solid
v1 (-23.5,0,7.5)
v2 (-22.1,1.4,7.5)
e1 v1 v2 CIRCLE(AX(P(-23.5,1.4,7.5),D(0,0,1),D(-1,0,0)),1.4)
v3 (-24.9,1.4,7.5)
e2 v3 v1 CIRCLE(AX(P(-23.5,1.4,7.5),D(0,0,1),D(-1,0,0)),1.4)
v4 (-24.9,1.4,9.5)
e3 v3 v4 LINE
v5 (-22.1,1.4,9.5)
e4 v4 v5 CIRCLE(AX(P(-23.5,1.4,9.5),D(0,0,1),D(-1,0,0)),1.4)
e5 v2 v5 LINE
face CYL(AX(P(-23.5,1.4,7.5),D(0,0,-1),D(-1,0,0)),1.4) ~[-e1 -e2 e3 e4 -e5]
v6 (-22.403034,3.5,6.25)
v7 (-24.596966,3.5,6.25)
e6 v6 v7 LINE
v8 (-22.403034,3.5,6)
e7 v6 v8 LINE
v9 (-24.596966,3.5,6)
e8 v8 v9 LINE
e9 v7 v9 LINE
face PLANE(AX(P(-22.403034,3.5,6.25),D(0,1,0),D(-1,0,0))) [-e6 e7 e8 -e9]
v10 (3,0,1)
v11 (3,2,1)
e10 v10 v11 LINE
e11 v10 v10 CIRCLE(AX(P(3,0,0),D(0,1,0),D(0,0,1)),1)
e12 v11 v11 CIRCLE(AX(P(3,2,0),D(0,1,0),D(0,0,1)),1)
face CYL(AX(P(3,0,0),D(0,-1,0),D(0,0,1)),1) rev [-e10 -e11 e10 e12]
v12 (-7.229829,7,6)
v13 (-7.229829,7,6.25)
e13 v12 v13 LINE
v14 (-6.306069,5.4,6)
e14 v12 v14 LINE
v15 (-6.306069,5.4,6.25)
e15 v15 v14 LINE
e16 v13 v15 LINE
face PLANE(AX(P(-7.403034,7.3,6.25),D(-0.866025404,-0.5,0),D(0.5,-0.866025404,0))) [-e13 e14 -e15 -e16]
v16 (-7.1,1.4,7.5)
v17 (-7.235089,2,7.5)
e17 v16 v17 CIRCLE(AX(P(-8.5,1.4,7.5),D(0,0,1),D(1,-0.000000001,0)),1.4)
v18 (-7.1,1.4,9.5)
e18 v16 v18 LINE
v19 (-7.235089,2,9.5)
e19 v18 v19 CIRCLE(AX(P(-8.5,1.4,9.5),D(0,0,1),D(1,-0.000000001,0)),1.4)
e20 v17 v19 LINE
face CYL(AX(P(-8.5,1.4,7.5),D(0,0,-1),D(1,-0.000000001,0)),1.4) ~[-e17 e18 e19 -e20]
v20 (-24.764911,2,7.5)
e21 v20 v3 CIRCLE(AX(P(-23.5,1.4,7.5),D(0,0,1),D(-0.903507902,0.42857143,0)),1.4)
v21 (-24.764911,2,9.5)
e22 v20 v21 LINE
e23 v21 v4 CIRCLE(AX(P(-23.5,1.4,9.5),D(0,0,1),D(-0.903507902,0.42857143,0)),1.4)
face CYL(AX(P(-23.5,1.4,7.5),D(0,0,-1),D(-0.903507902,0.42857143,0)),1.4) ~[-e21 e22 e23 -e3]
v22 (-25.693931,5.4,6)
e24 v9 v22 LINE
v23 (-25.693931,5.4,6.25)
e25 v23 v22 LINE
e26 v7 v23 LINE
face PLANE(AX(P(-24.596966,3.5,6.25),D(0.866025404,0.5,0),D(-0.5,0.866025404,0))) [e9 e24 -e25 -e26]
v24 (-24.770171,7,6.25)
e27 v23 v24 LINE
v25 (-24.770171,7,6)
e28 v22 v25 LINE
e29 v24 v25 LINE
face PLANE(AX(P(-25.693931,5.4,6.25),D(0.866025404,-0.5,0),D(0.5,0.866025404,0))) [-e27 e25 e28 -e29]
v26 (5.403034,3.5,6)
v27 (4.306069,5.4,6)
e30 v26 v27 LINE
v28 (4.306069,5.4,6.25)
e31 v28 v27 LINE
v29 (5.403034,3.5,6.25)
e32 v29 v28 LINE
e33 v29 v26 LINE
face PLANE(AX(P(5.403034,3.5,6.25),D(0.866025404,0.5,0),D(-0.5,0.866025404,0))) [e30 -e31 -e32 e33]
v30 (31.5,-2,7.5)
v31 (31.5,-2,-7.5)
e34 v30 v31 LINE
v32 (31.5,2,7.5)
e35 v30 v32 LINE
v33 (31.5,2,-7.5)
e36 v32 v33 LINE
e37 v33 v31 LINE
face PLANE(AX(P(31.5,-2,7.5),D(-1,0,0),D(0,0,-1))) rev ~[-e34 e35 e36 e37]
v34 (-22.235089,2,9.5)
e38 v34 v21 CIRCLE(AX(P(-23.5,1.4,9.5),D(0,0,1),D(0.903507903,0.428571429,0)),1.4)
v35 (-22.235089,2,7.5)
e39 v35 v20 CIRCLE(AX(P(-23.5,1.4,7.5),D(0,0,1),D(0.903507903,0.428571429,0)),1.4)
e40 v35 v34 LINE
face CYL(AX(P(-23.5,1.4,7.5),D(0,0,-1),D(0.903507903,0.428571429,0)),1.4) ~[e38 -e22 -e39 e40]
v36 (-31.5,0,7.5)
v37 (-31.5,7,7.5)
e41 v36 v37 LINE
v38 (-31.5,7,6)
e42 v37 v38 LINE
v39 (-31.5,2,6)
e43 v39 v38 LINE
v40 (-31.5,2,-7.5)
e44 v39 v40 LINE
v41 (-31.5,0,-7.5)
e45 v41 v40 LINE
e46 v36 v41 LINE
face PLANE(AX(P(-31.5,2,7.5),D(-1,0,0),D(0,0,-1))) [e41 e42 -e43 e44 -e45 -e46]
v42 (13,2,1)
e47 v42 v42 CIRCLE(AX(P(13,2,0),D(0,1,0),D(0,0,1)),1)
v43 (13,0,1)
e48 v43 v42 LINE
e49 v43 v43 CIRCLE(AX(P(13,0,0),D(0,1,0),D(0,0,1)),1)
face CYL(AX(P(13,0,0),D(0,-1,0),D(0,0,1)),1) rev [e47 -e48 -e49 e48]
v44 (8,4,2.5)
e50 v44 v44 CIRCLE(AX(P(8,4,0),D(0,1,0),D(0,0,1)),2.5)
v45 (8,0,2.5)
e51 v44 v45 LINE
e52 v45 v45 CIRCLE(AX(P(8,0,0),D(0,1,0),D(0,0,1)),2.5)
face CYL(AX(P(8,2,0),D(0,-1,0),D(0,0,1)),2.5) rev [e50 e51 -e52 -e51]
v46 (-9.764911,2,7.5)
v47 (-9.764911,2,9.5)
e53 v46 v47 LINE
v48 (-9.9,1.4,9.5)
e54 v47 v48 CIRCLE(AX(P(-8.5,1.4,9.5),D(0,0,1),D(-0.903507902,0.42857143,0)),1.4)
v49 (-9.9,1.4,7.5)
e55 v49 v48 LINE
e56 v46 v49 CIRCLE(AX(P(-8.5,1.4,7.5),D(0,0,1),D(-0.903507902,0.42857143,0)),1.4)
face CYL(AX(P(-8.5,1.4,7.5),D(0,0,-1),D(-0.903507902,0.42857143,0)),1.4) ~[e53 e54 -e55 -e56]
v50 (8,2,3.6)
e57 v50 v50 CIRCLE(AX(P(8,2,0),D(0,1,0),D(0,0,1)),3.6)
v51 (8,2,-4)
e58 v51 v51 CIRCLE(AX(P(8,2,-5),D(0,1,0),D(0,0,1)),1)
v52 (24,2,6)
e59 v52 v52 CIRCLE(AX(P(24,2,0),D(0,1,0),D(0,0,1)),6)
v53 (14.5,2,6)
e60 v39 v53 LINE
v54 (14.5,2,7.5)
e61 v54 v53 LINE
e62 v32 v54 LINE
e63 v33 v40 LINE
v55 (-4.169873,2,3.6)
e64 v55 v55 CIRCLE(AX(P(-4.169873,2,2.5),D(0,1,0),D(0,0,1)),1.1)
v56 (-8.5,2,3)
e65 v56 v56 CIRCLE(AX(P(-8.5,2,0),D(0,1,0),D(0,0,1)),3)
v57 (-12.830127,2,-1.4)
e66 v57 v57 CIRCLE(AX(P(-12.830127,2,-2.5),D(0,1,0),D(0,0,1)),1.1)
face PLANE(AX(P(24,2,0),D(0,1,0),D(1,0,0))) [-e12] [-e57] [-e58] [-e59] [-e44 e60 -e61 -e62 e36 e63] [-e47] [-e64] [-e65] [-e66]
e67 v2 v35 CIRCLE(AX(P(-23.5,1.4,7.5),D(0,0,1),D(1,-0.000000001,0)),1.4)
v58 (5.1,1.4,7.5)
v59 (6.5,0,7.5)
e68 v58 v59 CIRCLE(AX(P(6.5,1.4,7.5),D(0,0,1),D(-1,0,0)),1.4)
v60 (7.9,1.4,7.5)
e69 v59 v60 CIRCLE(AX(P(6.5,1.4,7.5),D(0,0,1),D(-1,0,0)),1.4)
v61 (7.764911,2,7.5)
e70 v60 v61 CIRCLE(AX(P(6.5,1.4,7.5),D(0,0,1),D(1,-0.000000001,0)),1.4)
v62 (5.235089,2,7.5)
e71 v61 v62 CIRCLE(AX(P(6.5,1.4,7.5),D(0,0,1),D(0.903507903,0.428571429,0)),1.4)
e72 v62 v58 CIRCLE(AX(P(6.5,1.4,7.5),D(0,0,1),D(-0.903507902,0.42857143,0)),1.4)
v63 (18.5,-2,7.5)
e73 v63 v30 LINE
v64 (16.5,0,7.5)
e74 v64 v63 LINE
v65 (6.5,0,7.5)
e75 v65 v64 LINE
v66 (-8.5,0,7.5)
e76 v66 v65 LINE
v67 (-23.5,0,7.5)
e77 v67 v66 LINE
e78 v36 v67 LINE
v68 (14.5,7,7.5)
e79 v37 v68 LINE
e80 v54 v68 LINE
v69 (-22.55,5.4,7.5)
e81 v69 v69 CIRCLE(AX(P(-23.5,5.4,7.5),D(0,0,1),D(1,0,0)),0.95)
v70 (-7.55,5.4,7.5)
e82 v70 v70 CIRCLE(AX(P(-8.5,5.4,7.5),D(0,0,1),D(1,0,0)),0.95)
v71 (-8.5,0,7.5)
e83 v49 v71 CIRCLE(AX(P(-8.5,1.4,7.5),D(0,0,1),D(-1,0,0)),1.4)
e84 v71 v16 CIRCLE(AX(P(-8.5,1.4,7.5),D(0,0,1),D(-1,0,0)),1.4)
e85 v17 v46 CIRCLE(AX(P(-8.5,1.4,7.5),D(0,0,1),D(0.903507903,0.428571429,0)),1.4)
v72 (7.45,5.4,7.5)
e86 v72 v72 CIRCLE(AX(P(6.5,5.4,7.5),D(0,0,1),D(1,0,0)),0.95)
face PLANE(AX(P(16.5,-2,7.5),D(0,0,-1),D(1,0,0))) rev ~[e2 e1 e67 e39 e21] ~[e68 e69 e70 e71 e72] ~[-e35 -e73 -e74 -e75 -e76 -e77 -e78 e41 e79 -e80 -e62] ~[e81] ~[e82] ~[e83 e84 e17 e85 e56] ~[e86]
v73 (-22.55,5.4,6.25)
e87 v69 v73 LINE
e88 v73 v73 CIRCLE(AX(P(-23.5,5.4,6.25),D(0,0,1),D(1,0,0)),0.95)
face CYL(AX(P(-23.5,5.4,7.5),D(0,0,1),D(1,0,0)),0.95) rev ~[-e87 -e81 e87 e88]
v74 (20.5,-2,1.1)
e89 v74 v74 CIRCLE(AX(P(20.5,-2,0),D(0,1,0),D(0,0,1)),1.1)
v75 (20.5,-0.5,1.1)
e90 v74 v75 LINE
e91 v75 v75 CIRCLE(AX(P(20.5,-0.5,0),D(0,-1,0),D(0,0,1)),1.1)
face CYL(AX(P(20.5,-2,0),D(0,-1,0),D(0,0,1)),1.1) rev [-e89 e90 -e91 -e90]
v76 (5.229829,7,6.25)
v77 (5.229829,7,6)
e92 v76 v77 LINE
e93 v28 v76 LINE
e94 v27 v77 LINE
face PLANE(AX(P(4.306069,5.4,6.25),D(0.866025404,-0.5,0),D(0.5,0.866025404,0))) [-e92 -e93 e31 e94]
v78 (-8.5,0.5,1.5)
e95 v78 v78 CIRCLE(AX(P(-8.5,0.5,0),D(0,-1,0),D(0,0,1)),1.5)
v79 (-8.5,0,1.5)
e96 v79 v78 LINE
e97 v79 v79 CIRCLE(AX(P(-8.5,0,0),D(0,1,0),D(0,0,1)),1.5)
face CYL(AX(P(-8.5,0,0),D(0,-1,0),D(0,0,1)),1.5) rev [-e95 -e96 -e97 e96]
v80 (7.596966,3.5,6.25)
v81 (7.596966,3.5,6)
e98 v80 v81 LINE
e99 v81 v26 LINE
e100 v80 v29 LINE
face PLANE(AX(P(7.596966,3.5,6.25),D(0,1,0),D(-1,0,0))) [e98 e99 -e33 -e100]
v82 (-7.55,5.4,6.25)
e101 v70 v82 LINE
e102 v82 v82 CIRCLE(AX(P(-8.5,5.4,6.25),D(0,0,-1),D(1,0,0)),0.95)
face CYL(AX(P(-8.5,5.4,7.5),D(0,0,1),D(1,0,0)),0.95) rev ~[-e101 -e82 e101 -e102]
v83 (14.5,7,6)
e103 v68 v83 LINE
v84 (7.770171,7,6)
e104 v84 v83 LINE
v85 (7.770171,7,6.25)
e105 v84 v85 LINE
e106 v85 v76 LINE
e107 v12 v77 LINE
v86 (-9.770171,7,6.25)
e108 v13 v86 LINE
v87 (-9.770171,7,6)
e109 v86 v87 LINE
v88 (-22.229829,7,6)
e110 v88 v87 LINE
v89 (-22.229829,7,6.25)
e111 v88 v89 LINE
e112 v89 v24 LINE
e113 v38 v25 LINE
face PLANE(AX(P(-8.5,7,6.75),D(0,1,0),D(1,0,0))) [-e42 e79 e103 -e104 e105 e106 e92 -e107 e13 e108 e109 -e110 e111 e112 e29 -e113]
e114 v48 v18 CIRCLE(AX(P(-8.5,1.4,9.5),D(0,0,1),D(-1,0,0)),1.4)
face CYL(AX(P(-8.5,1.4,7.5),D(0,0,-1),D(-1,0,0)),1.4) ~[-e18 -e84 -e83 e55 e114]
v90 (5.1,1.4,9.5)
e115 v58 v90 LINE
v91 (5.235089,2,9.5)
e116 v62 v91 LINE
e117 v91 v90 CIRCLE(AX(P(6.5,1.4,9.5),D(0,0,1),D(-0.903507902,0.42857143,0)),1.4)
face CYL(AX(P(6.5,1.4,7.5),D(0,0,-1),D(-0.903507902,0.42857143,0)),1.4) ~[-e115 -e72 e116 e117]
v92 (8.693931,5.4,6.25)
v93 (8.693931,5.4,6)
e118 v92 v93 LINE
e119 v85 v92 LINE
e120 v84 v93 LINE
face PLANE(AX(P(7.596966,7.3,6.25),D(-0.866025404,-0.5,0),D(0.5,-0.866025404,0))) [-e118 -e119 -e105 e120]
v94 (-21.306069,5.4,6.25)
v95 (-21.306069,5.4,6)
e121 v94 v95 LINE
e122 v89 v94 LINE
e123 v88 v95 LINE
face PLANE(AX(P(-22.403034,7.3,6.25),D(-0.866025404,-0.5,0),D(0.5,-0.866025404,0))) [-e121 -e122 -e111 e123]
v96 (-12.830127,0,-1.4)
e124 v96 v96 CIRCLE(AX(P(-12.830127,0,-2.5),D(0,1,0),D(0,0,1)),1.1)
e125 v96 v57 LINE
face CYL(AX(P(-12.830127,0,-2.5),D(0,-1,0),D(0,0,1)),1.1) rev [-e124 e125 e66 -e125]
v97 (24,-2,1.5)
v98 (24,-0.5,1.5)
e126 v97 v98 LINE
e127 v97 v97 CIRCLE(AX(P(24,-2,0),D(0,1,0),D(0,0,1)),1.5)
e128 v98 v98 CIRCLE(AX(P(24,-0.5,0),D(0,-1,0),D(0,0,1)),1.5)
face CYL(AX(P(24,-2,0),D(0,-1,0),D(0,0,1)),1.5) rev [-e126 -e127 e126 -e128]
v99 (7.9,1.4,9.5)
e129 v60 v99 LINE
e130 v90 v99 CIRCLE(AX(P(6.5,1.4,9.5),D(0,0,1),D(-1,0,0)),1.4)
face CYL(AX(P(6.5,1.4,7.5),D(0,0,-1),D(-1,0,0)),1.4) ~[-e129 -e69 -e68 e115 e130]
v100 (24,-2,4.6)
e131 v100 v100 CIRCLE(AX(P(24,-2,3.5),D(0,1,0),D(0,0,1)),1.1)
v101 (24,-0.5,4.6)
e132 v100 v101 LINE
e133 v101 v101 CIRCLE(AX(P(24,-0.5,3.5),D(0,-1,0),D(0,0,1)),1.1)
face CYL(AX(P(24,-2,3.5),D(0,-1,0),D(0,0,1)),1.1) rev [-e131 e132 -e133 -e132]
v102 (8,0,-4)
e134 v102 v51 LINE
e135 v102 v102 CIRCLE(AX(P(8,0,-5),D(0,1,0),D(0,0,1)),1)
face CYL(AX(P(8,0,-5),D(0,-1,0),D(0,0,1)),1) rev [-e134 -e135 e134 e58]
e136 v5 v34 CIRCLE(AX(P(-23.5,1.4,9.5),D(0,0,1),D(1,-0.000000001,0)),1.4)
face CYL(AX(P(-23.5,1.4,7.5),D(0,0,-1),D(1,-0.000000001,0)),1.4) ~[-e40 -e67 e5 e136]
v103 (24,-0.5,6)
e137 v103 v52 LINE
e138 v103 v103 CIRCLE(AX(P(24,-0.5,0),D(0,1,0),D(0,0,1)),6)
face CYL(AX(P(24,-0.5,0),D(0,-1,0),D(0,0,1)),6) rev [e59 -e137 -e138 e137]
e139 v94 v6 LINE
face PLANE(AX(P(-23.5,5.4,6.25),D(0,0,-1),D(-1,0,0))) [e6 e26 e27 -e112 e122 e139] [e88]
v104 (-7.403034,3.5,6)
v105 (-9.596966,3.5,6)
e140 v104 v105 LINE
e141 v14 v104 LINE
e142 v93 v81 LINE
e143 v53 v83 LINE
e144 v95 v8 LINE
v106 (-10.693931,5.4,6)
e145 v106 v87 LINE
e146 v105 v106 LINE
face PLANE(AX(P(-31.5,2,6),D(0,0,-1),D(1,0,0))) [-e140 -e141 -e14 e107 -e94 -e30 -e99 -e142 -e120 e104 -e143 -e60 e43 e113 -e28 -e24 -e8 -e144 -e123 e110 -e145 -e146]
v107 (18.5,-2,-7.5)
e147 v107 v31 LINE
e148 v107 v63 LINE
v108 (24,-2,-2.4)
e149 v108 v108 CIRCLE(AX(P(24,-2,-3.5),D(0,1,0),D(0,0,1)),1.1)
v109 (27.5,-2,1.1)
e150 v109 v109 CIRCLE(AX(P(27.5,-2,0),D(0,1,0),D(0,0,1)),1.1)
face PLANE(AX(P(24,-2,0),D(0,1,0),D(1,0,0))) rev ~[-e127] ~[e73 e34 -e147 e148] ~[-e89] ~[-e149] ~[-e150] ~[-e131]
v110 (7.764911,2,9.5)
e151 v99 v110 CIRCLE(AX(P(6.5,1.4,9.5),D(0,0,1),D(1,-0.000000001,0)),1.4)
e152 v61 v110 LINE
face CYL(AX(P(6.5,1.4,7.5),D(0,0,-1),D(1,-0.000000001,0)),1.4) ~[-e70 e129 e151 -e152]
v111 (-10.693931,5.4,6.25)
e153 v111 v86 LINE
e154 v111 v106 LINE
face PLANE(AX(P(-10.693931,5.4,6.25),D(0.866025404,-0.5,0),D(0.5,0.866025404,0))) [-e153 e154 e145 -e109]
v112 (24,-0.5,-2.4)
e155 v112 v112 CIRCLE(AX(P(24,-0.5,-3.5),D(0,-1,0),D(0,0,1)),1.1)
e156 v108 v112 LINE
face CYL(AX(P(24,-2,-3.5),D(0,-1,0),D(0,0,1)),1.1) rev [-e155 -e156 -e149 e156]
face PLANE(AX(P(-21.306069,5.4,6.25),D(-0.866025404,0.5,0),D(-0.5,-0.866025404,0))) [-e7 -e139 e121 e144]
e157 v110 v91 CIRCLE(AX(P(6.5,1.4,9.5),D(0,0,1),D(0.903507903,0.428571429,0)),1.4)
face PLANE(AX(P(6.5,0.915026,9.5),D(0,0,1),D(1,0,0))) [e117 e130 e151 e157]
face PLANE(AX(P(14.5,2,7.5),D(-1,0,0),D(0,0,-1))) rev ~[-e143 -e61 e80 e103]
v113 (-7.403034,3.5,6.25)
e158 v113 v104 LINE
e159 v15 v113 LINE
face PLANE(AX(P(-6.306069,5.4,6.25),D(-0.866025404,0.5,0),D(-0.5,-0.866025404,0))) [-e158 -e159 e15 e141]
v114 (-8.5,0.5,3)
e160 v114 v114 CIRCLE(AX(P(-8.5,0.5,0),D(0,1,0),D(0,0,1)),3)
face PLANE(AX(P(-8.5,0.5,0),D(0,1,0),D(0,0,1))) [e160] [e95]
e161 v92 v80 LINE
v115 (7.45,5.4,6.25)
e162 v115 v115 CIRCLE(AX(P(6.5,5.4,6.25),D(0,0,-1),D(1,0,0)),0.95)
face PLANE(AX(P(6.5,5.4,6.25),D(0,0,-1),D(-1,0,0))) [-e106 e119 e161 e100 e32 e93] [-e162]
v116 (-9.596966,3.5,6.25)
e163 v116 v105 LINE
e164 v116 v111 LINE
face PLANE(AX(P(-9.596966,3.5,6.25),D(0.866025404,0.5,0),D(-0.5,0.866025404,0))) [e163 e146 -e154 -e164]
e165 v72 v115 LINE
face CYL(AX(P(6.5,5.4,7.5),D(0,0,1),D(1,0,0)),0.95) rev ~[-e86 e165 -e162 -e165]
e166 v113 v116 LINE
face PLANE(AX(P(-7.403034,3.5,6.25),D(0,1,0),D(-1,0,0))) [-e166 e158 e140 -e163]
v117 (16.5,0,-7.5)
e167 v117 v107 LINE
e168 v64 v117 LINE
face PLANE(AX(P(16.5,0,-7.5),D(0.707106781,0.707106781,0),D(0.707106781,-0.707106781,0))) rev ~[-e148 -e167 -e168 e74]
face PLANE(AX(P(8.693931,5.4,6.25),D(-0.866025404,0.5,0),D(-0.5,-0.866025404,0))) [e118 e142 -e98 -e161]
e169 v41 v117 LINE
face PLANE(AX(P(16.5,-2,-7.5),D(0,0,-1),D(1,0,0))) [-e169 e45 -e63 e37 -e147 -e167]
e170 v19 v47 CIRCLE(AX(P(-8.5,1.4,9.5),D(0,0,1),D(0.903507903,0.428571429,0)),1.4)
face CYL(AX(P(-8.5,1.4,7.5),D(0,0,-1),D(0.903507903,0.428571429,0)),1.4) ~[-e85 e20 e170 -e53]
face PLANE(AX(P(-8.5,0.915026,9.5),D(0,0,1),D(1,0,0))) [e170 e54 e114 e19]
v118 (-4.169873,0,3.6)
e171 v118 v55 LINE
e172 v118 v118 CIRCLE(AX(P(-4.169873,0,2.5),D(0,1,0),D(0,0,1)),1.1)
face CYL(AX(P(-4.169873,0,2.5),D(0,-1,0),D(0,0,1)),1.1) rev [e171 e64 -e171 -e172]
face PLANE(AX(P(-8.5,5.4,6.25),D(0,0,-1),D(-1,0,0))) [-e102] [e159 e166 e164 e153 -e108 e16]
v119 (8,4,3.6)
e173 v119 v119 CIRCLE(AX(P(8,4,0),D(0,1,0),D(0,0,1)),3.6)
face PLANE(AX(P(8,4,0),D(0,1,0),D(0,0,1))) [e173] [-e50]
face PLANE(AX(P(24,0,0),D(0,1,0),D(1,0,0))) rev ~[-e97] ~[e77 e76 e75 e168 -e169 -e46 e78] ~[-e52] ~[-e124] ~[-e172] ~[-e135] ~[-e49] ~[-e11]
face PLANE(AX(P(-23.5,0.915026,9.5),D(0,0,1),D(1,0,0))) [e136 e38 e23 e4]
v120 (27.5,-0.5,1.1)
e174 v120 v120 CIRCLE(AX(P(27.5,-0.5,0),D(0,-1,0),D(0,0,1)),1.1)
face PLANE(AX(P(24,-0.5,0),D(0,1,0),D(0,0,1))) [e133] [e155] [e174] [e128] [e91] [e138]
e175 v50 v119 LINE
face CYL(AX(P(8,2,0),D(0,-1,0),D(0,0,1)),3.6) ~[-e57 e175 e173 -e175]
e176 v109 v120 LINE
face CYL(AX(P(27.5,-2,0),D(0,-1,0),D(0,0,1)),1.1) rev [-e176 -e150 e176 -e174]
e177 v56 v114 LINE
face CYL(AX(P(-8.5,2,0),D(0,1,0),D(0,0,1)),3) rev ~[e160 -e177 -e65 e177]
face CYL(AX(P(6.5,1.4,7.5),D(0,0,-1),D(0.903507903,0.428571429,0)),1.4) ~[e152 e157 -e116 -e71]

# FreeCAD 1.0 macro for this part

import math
import FreeCAD as App
import Part
import Sketcher

V = App.Vector
Q = App.Units.Quantity

doc = App.newDocument("Part")
body = doc.addObject("PartDesign::Body", "Body")

# Sketch on XZ plane
sketch1 = body.newObject("Sketcher::SketchObject", "Sketch")
sketch1.AttachmentSupport = (doc.getObject("XZ_Plane"), [""])
sketch1.MapMode = "FlatFace"
sketch1.addGeometry([
    Part.LineSegment(V(-31.5, -7.5, 0), V(-31.5, 7.5, 0)),  # 0
    Part.LineSegment(V(-31.5, 7.5, 0), V(16.5, 7.5, 0)),  # 1
    Part.LineSegment(V(16.5, 7.5, 0), V(16.5, -7.5, 0)),  # 2
    Part.LineSegment(V(16.5, -7.5, 0), V(-31.5, -7.5, 0)),  # 3
    Part.Circle(V(-4.169873, 2.5, 0), V(0, 0, 1), 1.1),  # 4
    Part.Circle(V(-8.5, 0, 0), V(0, 0, 1), 1.5),  # 5
    Part.Circle(V(3, 0, 0), V(0, 0, 1), 1),  # 6
    Part.Circle(V(8, 0, 0), V(0, 0, 1), 2.5),  # 7
    Part.Circle(V(13, 0, 0), V(0, 0, 1), 1),  # 8
    Part.Circle(V(-12.830127, -2.5, 0), V(0, 0, 1), 1.1),  # 9
    Part.Circle(V(8, -5, 0), V(0, 0, 1), 1),  # 10
], False)
sketch1.addConstraint([
    Sketcher.Constraint("Coincident", 0, 2, 1, 1),
    Sketcher.Constraint("Coincident", 1, 2, 2, 1),
    Sketcher.Constraint("Coincident", 2, 2, 3, 1),
    Sketcher.Constraint("Coincident", 3, 2, 0, 1),
    Sketcher.Constraint("Vertical", 0),
    Sketcher.Constraint("Horizontal", 1),
    Sketcher.Constraint("Vertical", 2),
    Sketcher.Constraint("Horizontal", 3),
    Sketcher.Constraint("Equal", 6, 8),
    Sketcher.Constraint("Equal", 4, 9),
    Sketcher.Constraint("Equal", 8, 10),
    Sketcher.Constraint("PointOnObject", 5, 3, -1),
    Sketcher.Constraint("PointOnObject", 6, 3, -1),
    Sketcher.Constraint("PointOnObject", 7, 3, -1),
    Sketcher.Constraint("PointOnObject", 8, 3, -1),
    Sketcher.Constraint("Vertical", 7, 3, 10, 3),
    Sketcher.Constraint("Diameter", 5, Q("3 mm")),
    Sketcher.Constraint("Diameter", 6, Q("2 mm")),
    Sketcher.Constraint("Diameter", 7, Q("5 mm")),
    Sketcher.Constraint("Diameter", 4, Q("2.2 mm")),
    Sketcher.Constraint("DistanceX", 1, 1, 1, 2, Q("48 mm")),
    Sketcher.Constraint("DistanceY", 0, 1, 0, 2, Q("15 mm")),
    Sketcher.Constraint("DistanceX", -1, 1, 6, 3, Q("3 mm")),
    Sketcher.Constraint("DistanceX", -1, 1, 7, 3, Q("8 mm")),
    Sketcher.Constraint("DistanceX", -1, 1, 8, 3, Q("13 mm")),
    Sketcher.Constraint("DistanceY", 10, 3, -1, 1, Q("5 mm")),
    Sketcher.Constraint("DistanceY", 9, 3, 4, 3, Q("5 mm")),
    Sketcher.Constraint("DistanceY", 9, 3, 0, 2, Q("10 mm")),
    Sketcher.Constraint("DistanceX", 0, 2, 5, 3, Q("23 mm")),
    Sketcher.Constraint("DistanceY", -1, 1, 4, 3, Q("2.5 mm")),
    Sketcher.Constraint("DistanceX", 5, 3, -1, 1, Q("8.5 mm")),
    Sketcher.Constraint("DistanceX", 4, 3, -1, 1, Q("4.169873 mm")),
    Sketcher.Constraint("DistanceX", 9, 3, -1, 1, Q("12.830127 mm")),
])
pad1 = body.newObject("PartDesign::Pad", "Pad")
pad1.Profile = sketch1
pad1.Length = 2
pad1.Reversed = True

# Sketch on XY plane
sketch2 = body.newObject("Sketcher::SketchObject", "Sketch001")
sketch2.AttachmentSupport = (doc.getObject("XY_Plane"), [""])
sketch2.MapMode = "FlatFace"
sketch2.AttachmentOffset = App.Placement(V(0, 0, 7.5), App.Rotation())
sketch2.addGeometry([
    Part.ArcOfCircle(Part.Circle(V(-23.5, 1.4, 0), V(0, 0, 1), 1.4), math.radians(180), math.radians(360)),  # 0
    Part.ArcOfCircle(Part.Circle(V(-23.5, 1.4, 0), V(0, 0, 1), 1.4), math.radians(0), math.radians(25.376934)),  # 1
    Part.ArcOfCircle(Part.Circle(V(-23.5, 1.4, 0), V(0, 0, 1), 1.4), math.radians(25.376934), math.radians(154.623066)),  # 2
    Part.ArcOfCircle(Part.Circle(V(-23.5, 1.4, 0), V(0, 0, 1), 1.4), math.radians(154.623066), math.radians(180)),  # 3
    Part.ArcOfCircle(Part.Circle(V(-8.5, 1.4, 0), V(0, 0, 1), 1.4), math.radians(180), math.radians(360)),  # 4
    Part.ArcOfCircle(Part.Circle(V(-8.5, 1.4, 0), V(0, 0, 1), 1.4), math.radians(0), math.radians(25.376934)),  # 5
    Part.ArcOfCircle(Part.Circle(V(-8.5, 1.4, 0), V(0, 0, 1), 1.4), math.radians(25.376934), math.radians(154.623066)),  # 6
    Part.ArcOfCircle(Part.Circle(V(-8.5, 1.4, 0), V(0, 0, 1), 1.4), math.radians(154.623066), math.radians(180)),  # 7
    Part.ArcOfCircle(Part.Circle(V(6.5, 1.4, 0), V(0, 0, 1), 1.4), math.radians(180), math.radians(360)),  # 8
    Part.ArcOfCircle(Part.Circle(V(6.5, 1.4, 0), V(0, 0, 1), 1.4), math.radians(0), math.radians(25.376934)),  # 9
    Part.ArcOfCircle(Part.Circle(V(6.5, 1.4, 0), V(0, 0, 1), 1.4), math.radians(25.376934), math.radians(154.623066)),  # 10
    Part.ArcOfCircle(Part.Circle(V(6.5, 1.4, 0), V(0, 0, 1), 1.4), math.radians(154.623066), math.radians(180)),  # 11
], False)
sketch2.addConstraint([
    Sketcher.Constraint("Tangent", 0, 2, 1, 1),
    Sketcher.Constraint("Tangent", 1, 2, 2, 1),
    Sketcher.Constraint("Tangent", 2, 2, 3, 1),
    Sketcher.Constraint("Tangent", 3, 2, 0, 1),
    Sketcher.Constraint("Tangent", 4, 2, 5, 1),
    Sketcher.Constraint("Tangent", 5, 2, 6, 1),
    Sketcher.Constraint("Tangent", 6, 2, 7, 1),
    Sketcher.Constraint("Tangent", 7, 2, 4, 1),
    Sketcher.Constraint("Tangent", 8, 2, 9, 1),
    Sketcher.Constraint("Tangent", 9, 2, 10, 1),
    Sketcher.Constraint("Tangent", 10, 2, 11, 1),
    Sketcher.Constraint("Tangent", 11, 2, 8, 1),
    Sketcher.Constraint("Equal", 0, 1),
    Sketcher.Constraint("Equal", 3, 4),
    Sketcher.Constraint("Equal", 4, 5),
    Sketcher.Constraint("Equal", 7, 8),
    Sketcher.Constraint("Equal", 8, 9),
    Sketcher.Constraint("Horizontal", 3, 3, 4, 3),
    Sketcher.Constraint("Horizontal", 7, 3, 8, 3),
    Sketcher.Constraint("Horizontal", 11, 3, 0, 2),
    Sketcher.Constraint("Horizontal", 1, 2, 2, 2),
    Sketcher.Constraint("Horizontal", 0, 2, 3, 2),
    Sketcher.Constraint("Horizontal", 3, 2, 4, 2),
    Sketcher.Constraint("Horizontal", 2, 2, 5, 2),
    Sketcher.Constraint("Horizontal", 5, 2, 6, 2),
    Sketcher.Constraint("Horizontal", 4, 2, 7, 2),
    Sketcher.Constraint("Horizontal", 7, 2, 8, 2),
    Sketcher.Constraint("Horizontal", 6, 2, 9, 2),
    Sketcher.Constraint("Horizontal", 9, 2, 10, 2),
    Sketcher.Constraint("Horizontal", 8, 2, 11, 2),
    Sketcher.Constraint("Radius", 0, Q("1.4 mm")),
    Sketcher.Constraint("DistanceY", -1, 1, 1, 2, Q("2 mm")),
    Sketcher.Constraint("DistanceX", 1, 3, 4, 3, Q("15 mm")),
    Sketcher.Constraint("DistanceX", 5, 3, 8, 3, Q("15 mm")),
    Sketcher.Constraint("DistanceX", 0, 3, -1, 1, Q("23.5 mm")),
    Sketcher.Constraint("DistanceY", -1, 1, 0, 3, Q("1.4 mm")),
])
pad2 = body.newObject("PartDesign::Pad", "Pad001")
pad2.Profile = sketch2
pad2.Length = 2

# Sketch on XZ plane
sketch3 = body.newObject("Sketcher::SketchObject", "Sketch002")
sketch3.AttachmentSupport = (doc.getObject("XZ_Plane"), [""])
sketch3.MapMode = "FlatFace"
sketch3.AttachmentOffset = App.Placement(V(0, 0, -2), App.Rotation())
sketch3.addGeometry(Part.Circle(V(-8.5, 0, 0), V(0, 0, 1), 3), False)
sketch3.addConstraint([
    Sketcher.Constraint("PointOnObject", 0, 3, -1),
    Sketcher.Constraint("Diameter", 0, Q("6 mm")),
    Sketcher.Constraint("DistanceX", 0, 3, -1, 1, Q("8.5 mm")),
])
pocket1 = body.newObject("PartDesign::Pocket", "Pocket")
pocket1.Profile = sketch3
pocket1.Length = 1.5
pocket1.Reversed = True

# Sketch on XZ plane
sketch4 = body.newObject("Sketcher::SketchObject", "Sketch003")
sketch4.AttachmentSupport = (doc.getObject("XZ_Plane"), [""])
sketch4.MapMode = "FlatFace"
sketch4.AttachmentOffset = App.Placement(V(0, 0, -2), App.Rotation())
sketch4.addGeometry([
    Part.LineSegment(V(-31.5, 6, 0), V(-31.5, 7.5, 0)),
    Part.LineSegment(V(-31.5, 7.5, 0), V(14.5, 7.5, 0)),
    Part.LineSegment(V(14.5, 7.5, 0), V(14.5, 6, 0)),
    Part.LineSegment(V(14.5, 6, 0), V(-31.5, 6, 0)),
], False)
sketch4.addConstraint([
    Sketcher.Constraint("Coincident", 0, 2, 1, 1),
    Sketcher.Constraint("Coincident", 1, 2, 2, 1),
    Sketcher.Constraint("Coincident", 2, 2, 3, 1),
    Sketcher.Constraint("Coincident", 3, 2, 0, 1),
    Sketcher.Constraint("Vertical", 0),
    Sketcher.Constraint("Horizontal", 1),
    Sketcher.Constraint("Vertical", 2),
    Sketcher.Constraint("Horizontal", 3),
    Sketcher.Constraint("DistanceX", 1, 1, 1, 2, Q("46 mm")),
    Sketcher.Constraint("DistanceY", 0, 1, 0, 2, Q("1.5 mm")),
    Sketcher.Constraint("DistanceY", -1, 1, 2, 2, Q("6 mm")),
    Sketcher.Constraint("DistanceX", 0, 2, -1, 1, Q("31.5 mm")),
])
pad3 = body.newObject("PartDesign::Pad", "Pad002")
pad3.Profile = sketch4
pad3.Length = 5
pad3.Reversed = True

# Sketch on XY plane
sketch5 = body.newObject("Sketcher::SketchObject", "Sketch004")
sketch5.AttachmentSupport = (doc.getObject("XY_Plane"), [""])
sketch5.MapMode = "FlatFace"
sketch5.AttachmentOffset = App.Placement(V(0, 0, 7.5), App.Rotation())
sketch5.addGeometry([
    Part.Circle(V(-23.5, 5.4, 0), V(0, 0, 1), 0.95),
    Part.Circle(V(-8.5, 5.4, 0), V(0, 0, 1), 0.95),
    Part.Circle(V(6.5, 5.4, 0), V(0, 0, 1), 0.95),
], False)
sketch5.addConstraint([
    Sketcher.Constraint("Equal", 0, 1),
    Sketcher.Constraint("Equal", 1, 2),
    Sketcher.Constraint("Horizontal", 0, 3, 1, 3),
    Sketcher.Constraint("Horizontal", 1, 3, 2, 3),
    Sketcher.Constraint("Diameter", 0, Q("1.9 mm")),
    Sketcher.Constraint("DistanceX", 0, 3, 1, 3, Q("15 mm")),
    Sketcher.Constraint("DistanceX", 1, 3, 2, 3, Q("15 mm")),
    Sketcher.Constraint("DistanceX", 0, 3, -1, 1, Q("23.5 mm")),
    Sketcher.Constraint("DistanceY", -1, 1, 0, 3, Q("5.4 mm")),
])
pocket2 = body.newObject("PartDesign::Pocket", "Pocket001")
pocket2.Profile = sketch5
pocket2.Length = 6

# Sketch on XY plane
sketch6 = body.newObject("Sketcher::SketchObject", "Sketch005")
sketch6.AttachmentSupport = (doc.getObject("XY_Plane"), [""])
sketch6.MapMode = "FlatFace"
sketch6.AttachmentOffset = App.Placement(V(0, 0, 6.25), App.Rotation())
sketch6.addGeometry([
    Part.LineSegment(V(7.596966, 3.5, 0), V(5.403034, 3.5, 0)),  # 0
    Part.LineSegment(V(5.403034, 3.5, 0), V(4.306069, 5.4, 0)),  # 1
    Part.LineSegment(V(4.306069, 5.4, 0), V(5.403034, 7.3, 0)),  # 2
    Part.LineSegment(V(5.403034, 7.3, 0), V(7.596966, 7.3, 0)),  # 3
    Part.LineSegment(V(7.596966, 7.3, 0), V(8.693931, 5.4, 0)),  # 4
    Part.LineSegment(V(8.693931, 5.4, 0), V(7.596966, 3.5, 0)),  # 5
    Part.Circle(V(6.5, 5.4, 0), V(0, 0, 1), 0.95),  # 6
    Part.LineSegment(V(-6.306069, 5.4, 0), V(-7.403034, 3.5, 0)),  # 7
    Part.LineSegment(V(-7.403034, 3.5, 0), V(-9.596966, 3.5, 0)),  # 8
    Part.LineSegment(V(-9.596966, 3.5, 0), V(-10.693931, 5.4, 0)),  # 9
    Part.LineSegment(V(-10.693931, 5.4, 0), V(-9.596966, 7.3, 0)),  # 10
    Part.LineSegment(V(-9.596966, 7.3, 0), V(-7.403034, 7.3, 0)),  # 11
    Part.LineSegment(V(-7.403034, 7.3, 0), V(-6.306069, 5.4, 0)),  # 12
    Part.Circle(V(-8.5, 5.4, 0), V(0, 0, 1), 0.95),  # 13
    Part.LineSegment(V(-21.306069, 5.4, 0), V(-22.403034, 3.5, 0)),  # 14
    Part.LineSegment(V(-22.403034, 3.5, 0), V(-24.596966, 3.5, 0)),  # 15
    Part.LineSegment(V(-24.596966, 3.5, 0), V(-25.693931, 5.4, 0)),  # 16
    Part.LineSegment(V(-25.693931, 5.4, 0), V(-24.596966, 7.3, 0)),  # 17
    Part.LineSegment(V(-24.596966, 7.3, 0), V(-22.403034, 7.3, 0)),  # 18
    Part.LineSegment(V(-22.403034, 7.3, 0), V(-21.306069, 5.4, 0)),  # 19
], False)
sketch6.addConstraint([
    Sketcher.Constraint("Coincident", 0, 2, 1, 1),
    Sketcher.Constraint("Coincident", 1, 2, 2, 1),
    Sketcher.Constraint("Coincident", 2, 2, 3, 1),
    Sketcher.Constraint("Coincident", 3, 2, 4, 1),
    Sketcher.Constraint("Coincident", 4, 2, 5, 1),
    Sketcher.Constraint("Coincident", 5, 2, 0, 1),
    Sketcher.Constraint("Coincident", 7, 2, 8, 1),
    Sketcher.Constraint("Coincident", 8, 2, 9, 1),
    Sketcher.Constraint("Coincident", 9, 2, 10, 1),
    Sketcher.Constraint("Coincident", 10, 2, 11, 1),
    Sketcher.Constraint("Coincident", 11, 2, 12, 1),
    Sketcher.Constraint("Coincident", 12, 2, 7, 1),
    Sketcher.Constraint("Coincident", 14, 2, 15, 1),
    Sketcher.Constraint("Coincident", 15, 2, 16, 1),
    Sketcher.Constraint("Coincident", 16, 2, 17, 1),
    Sketcher.Constraint("Coincident", 17, 2, 18, 1),
    Sketcher.Constraint("Coincident", 18, 2, 19, 1),
    Sketcher.Constraint("Coincident", 19, 2, 14, 1),
    Sketcher.Constraint("Horizontal", 0),
    Sketcher.Constraint("Horizontal", 3),
    Sketcher.Constraint("Horizontal", 8),
    Sketcher.Constraint("Horizontal", 11),
    Sketcher.Constraint("Horizontal", 15),
    Sketcher.Constraint("Horizontal", 18),
    Sketcher.Constraint("Equal", 6, 13),
    Sketcher.Constraint("Parallel", 1, 4),
    Sketcher.Constraint("Parallel", 2, 5),
    Sketcher.Constraint("Parallel", 5, 7),
    Sketcher.Constraint("Parallel", 4, 9),
    Sketcher.Constraint("Parallel", 7, 10),
    Sketcher.Constraint("Parallel", 9, 12),
    Sketcher.Constraint("Parallel", 10, 14),
    Sketcher.Constraint("Parallel", 12, 16),
    Sketcher.Constraint("Parallel", 14, 17),
    Sketcher.Constraint("Parallel", 16, 19),
    Sketcher.Constraint("Horizontal", 6, 3, 13, 3),
    Sketcher.Constraint("Horizontal", 13, 3, 1, 2),
    Sketcher.Constraint("Horizontal", 1, 2, 4, 2),
    Sketcher.Constraint("Horizontal", 5, 2, 7, 2),
    Sketcher.Constraint("Horizontal", 4, 2, 9, 2),
    Sketcher.Constraint("Horizontal", 3, 2, 10, 2),
    Sketcher.Constraint("Horizontal", 9, 2, 12, 2),
    Sketcher.Constraint("Horizontal", 8, 2, 14, 2),
    Sketcher.Constraint("Horizontal", 12, 2, 16, 2),
    Sketcher.Constraint("Horizontal", 11, 2, 17, 2),
    Sketcher.Constraint("Horizontal", 16, 2, 19, 2),
    Sketcher.Constraint("Vertical", 0, 2, 2, 2),
    Sketcher.Constraint("Vertical", 3, 2, 5, 2),
    Sketcher.Constraint("Equal", 3, 8),
    Sketcher.Constraint("Equal", 11, 15),
    Sketcher.Constraint("Diameter", 6, Q("1.9 mm")),
    Sketcher.Constraint("Angle", 1, Q("120 deg")),
    Sketcher.Constraint("DistanceX", 13, 3, 6, 3, Q("15 mm")),
    Sketcher.Constraint("DistanceX", 8, 2, 0, 2, Q("15 mm")),
    Sketcher.Constraint("DistanceX", 14, 2, 7, 2, Q("15 mm")),
    Sketcher.Constraint("DistanceX", -1, 1, 6, 3, Q("6.5 mm")),
    Sketcher.Constraint("DistanceY", -1, 1, 6, 3, Q("5.4 mm")),
    Sketcher.Constraint("DistanceY", -1, 1, 0, 2, Q("3.5 mm")),
    Sketcher.Constraint("DistanceX", 0, 2, 0, 1, Q("2.193931 mm")),
    Sketcher.Constraint("DistanceX", -1, 1, 1, 2, Q("4.306069 mm")),
])
pocket3 = body.newObject("PartDesign::Pocket", "Pocket002")
pocket3.Profile = sketch6
pocket3.Length = 0.25

# Sketch on XZ plane
sketch7 = body.newObject("Sketcher::SketchObject", "Sketch006")
sketch7.AttachmentSupport = (doc.getObject("XZ_Plane"), [""])
sketch7.MapMode = "FlatFace"
sketch7.addGeometry([
    Part.LineSegment(V(16.5, -7.5, 0), V(16.5, 7.5, 0)),  # 0
    Part.LineSegment(V(16.5, 7.5, 0), V(31.5, 7.5, 0)),  # 1
    Part.LineSegment(V(31.5, 7.5, 0), V(31.5, -7.5, 0)),  # 2
    Part.LineSegment(V(31.5, -7.5, 0), V(16.5, -7.5, 0)),  # 3
    Part.Circle(V(24, -3.5, 0), V(0, 0, 1), 1.1),  # 4
    Part.Circle(V(24, 3.5, 0), V(0, 0, 1), 1.1),  # 5
    Part.Circle(V(20.5, 0, 0), V(0, 0, 1), 1.1),  # 6
    Part.Circle(V(24, 0, 0), V(0, 0, 1), 1.5),  # 7
    Part.Circle(V(27.5, 0, 0), V(0, 0, 1), 1.1),  # 8
], False)
sketch7.addConstraint([
    Sketcher.Constraint("Coincident", 0, 2, 1, 1),
    Sketcher.Constraint("Coincident", 1, 2, 2, 1),
    Sketcher.Constraint("Coincident", 2, 2, 3, 1),
    Sketcher.Constraint("Coincident", 3, 2, 0, 1),
    Sketcher.Constraint("Vertical", 0),
    Sketcher.Constraint("Horizontal", 1),
    Sketcher.Constraint("Vertical", 2),
    Sketcher.Constraint("Horizontal", 3),
    Sketcher.Constraint("Equal", 4, 5),
    Sketcher.Constraint("Equal", 5, 6),
    Sketcher.Constraint("Equal", 6, 8),
    Sketcher.Constraint("Symmetric", 4, 3, 5, 3, -1),
    Sketcher.Constraint("PointOnObject", 6, 3, -1),
    Sketcher.Constraint("PointOnObject", 7, 3, -1),
    Sketcher.Constraint("PointOnObject", 8, 3, -1),
    Sketcher.Constraint("Vertical", 5, 3, 7, 3),
    Sketcher.Constraint("Equal", 3, 0),
    Sketcher.Constraint("Diameter", 7, Q("3 mm")),
    Sketcher.Constraint("Diameter", 4, Q("2.2 mm")),
    Sketcher.Constraint("DistanceX", 1, 1, 1, 2, Q("15 mm")),
    Sketcher.Constraint("DistanceX", -1, 1, 4, 3, Q("24 mm")),
    Sketcher.Constraint("DistanceY", 4, 3, 5, 3, Q("7 mm")),
    Sketcher.Constraint("DistanceX", 6, 3, 8, 3, Q("7 mm")),
    Sketcher.Constraint("DistanceY", 5, 3, 0, 2, Q("4 mm")),
    Sketcher.Constraint("DistanceX", 0, 2, 6, 3, Q("4 mm")),
    Sketcher.Constraint("DistanceX", -1, 1, 6, 3, Q("20.5 mm")),
])
pad4 = body.newObject("PartDesign::Pad", "Pad003")
pad4.Profile = sketch7
pad4.Length = 2
pad4.Reversed = True

# Sketch on XZ plane
sketch8 = body.newObject("Sketcher::SketchObject", "Sketch007")
sketch8.AttachmentSupport = (doc.getObject("XZ_Plane"), [""])
sketch8.MapMode = "FlatFace"
sketch8.AttachmentOffset = App.Placement(V(0, 0, 2), App.Rotation())
sketch8.addGeometry([
    Part.LineSegment(V(16.5, -7.5, 0), V(16.5, 7.5, 0)),  # 0
    Part.LineSegment(V(16.5, 7.5, 0), V(31.5, 7.5, 0)),  # 1
    Part.LineSegment(V(31.5, 7.5, 0), V(31.5, -7.5, 0)),  # 2
    Part.LineSegment(V(31.5, -7.5, 0), V(16.5, -7.5, 0)),  # 3
    Part.Circle(V(24, -3.5, 0), V(0, 0, 1), 1.1),  # 4
    Part.Circle(V(24, 3.5, 0), V(0, 0, 1), 1.1),  # 5
    Part.Circle(V(20.5, 0, 0), V(0, 0, 1), 1.1),  # 6
    Part.Circle(V(24, 0, 0), V(0, 0, 1), 1.5),  # 7
    Part.Circle(V(27.5, 0, 0), V(0, 0, 1), 1.1),  # 8
], False)
sketch8.addConstraint([
    Sketcher.Constraint("Coincident", 0, 2, 1, 1),
    Sketcher.Constraint("Coincident", 1, 2, 2, 1),
    Sketcher.Constraint("Coincident", 2, 2, 3, 1),
    Sketcher.Constraint("Coincident", 3, 2, 0, 1),
    Sketcher.Constraint("Vertical", 0),
    Sketcher.Constraint("Horizontal", 1),
    Sketcher.Constraint("Vertical", 2),
    Sketcher.Constraint("Horizontal", 3),
    Sketcher.Constraint("Equal", 4, 5),
    Sketcher.Constraint("Equal", 5, 6),
    Sketcher.Constraint("Equal", 6, 8),
    Sketcher.Constraint("Symmetric", 4, 3, 5, 3, -1),
    Sketcher.Constraint("PointOnObject", 6, 3, -1),
    Sketcher.Constraint("PointOnObject", 7, 3, -1),
    Sketcher.Constraint("PointOnObject", 8, 3, -1),
    Sketcher.Constraint("Vertical", 5, 3, 7, 3),
    Sketcher.Constraint("Equal", 3, 0),
    Sketcher.Constraint("Diameter", 7, Q("3 mm")),
    Sketcher.Constraint("Diameter", 4, Q("2.2 mm")),
    Sketcher.Constraint("DistanceX", 1, 1, 1, 2, Q("15 mm")),
    Sketcher.Constraint("DistanceX", -1, 1, 4, 3, Q("24 mm")),
    Sketcher.Constraint("DistanceY", 4, 3, 5, 3, Q("7 mm")),
    Sketcher.Constraint("DistanceX", 6, 3, 8, 3, Q("7 mm")),
    Sketcher.Constraint("DistanceY", 5, 3, 0, 2, Q("4 mm")),
    Sketcher.Constraint("DistanceX", 0, 2, 6, 3, Q("4 mm")),
    Sketcher.Constraint("DistanceX", -1, 1, 6, 3, Q("20.5 mm")),
])
pad5 = body.newObject("PartDesign::Pad", "Pad004")
pad5.Profile = sketch8
pad5.Length = 2
pad5.Reversed = True

# Sketch on XZ plane
sketch9 = body.newObject("Sketcher::SketchObject", "Sketch008")
sketch9.AttachmentSupport = (doc.getObject("XZ_Plane"), [""])
sketch9.MapMode = "FlatFace"
sketch9.addGeometry(Part.Circle(V(24, 0, 0), V(0, 0, 1), 6), False)
sketch9.addConstraint([
    Sketcher.Constraint("PointOnObject", 0, 3, -1),
    Sketcher.Constraint("Diameter", 0, Q("12 mm")),
    Sketcher.Constraint("DistanceX", -1, 1, 0, 3, Q("24 mm")),
])
pocket4 = body.newObject("PartDesign::Pocket", "Pocket003")
pocket4.Profile = sketch9
pocket4.Type = "TwoLengths"
pocket4.Length = 2
pocket4.Length2 = 0.5

# Sketch on XY plane
sketch10 = body.newObject("Sketcher::SketchObject", "Sketch009")
sketch10.AttachmentSupport = (doc.getObject("XY_Plane"), [""])
sketch10.MapMode = "FlatFace"
sketch10.AttachmentOffset = App.Placement(V(0, 0, -7.5), App.Rotation())
sketch10.addGeometry([
    Part.LineSegment(V(16.5, 0, 0), V(18.5, -2, 0)),
    Part.LineSegment(V(18.5, -2, 0), V(16.5, -2, 0)),
    Part.LineSegment(V(16.5, -2, 0), V(16.5, 0, 0)),
], False)
sketch10.addConstraint([
    Sketcher.Constraint("Coincident", 0, 2, 1, 1),
    Sketcher.Constraint("Coincident", 1, 2, 2, 1),
    Sketcher.Constraint("Coincident", 2, 2, 0, 1),
    Sketcher.Constraint("Horizontal", 1),
    Sketcher.Constraint("Vertical", 2),
    Sketcher.Constraint("PointOnObject", 2, 2, -1),
    Sketcher.Constraint("Equal", 1, 2),
    Sketcher.Constraint("DistanceX", 1, 2, 1, 1, Q("2 mm")),
    Sketcher.Constraint("DistanceX", -1, 1, 0, 2, Q("18.5 mm")),
])
pocket5 = body.newObject("PartDesign::Pocket", "Pocket004")
pocket5.Profile = sketch10
pocket5.Length = 15
pocket5.Reversed = True

# Sketch on XZ plane
sketch11 = body.newObject("Sketcher::SketchObject", "Sketch010")
sketch11.AttachmentSupport = (doc.getObject("XZ_Plane"), [""])
sketch11.MapMode = "FlatFace"
sketch11.AttachmentOffset = App.Placement(V(0, 0, -2), App.Rotation())
sketch11.addGeometry([
    Part.Circle(V(8, 0, 0), V(0, 0, 1), 3.6),
    Part.Circle(V(8, 0, 0), V(0, 0, 1), 2.5),
], False)
sketch11.addConstraint([
    Sketcher.Constraint("Coincident", 1, 3, 0, 3),
    Sketcher.Constraint("PointOnObject", 0, 3, -1),
    Sketcher.Constraint("Diameter", 1, Q("5 mm")),
    Sketcher.Constraint("Diameter", 0, Q("7.2 mm")),
    Sketcher.Constraint("DistanceX", -1, 1, 0, 3, Q("8 mm")),
])
pad6 = body.newObject("PartDesign::Pad", "Pad005")
pad6.Profile = sketch11
pad6.Length = 2
pad6.Reversed = True

doc.recompute()
